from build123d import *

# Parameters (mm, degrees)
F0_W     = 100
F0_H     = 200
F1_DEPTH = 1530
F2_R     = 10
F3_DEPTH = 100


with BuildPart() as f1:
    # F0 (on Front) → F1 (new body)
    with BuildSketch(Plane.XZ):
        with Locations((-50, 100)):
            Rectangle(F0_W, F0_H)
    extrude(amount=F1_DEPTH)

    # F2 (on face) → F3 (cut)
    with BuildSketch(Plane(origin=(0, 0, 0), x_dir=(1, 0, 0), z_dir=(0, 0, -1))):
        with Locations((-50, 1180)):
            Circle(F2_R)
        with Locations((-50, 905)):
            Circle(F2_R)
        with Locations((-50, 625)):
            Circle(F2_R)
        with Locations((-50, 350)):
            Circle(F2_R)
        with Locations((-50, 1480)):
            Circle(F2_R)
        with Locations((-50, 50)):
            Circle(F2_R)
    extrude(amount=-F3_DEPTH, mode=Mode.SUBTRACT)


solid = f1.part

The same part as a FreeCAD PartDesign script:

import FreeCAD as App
import Part
import Sketcher
Q = App.Units.Quantity


def add_polygon(sketch, points):
    """Adds a closed chain of lines whose ends are joined by coincident constraints."""
    first, n = sketch.GeometryCount, len(points)
    for a, b in zip(points, points[1:] + points[:1]):
        sketch.addGeometry(Part.LineSegment(App.Vector(*a, 0), App.Vector(*b, 0)), False)
    for i in range(n):
        sketch.addConstraint(Sketcher.Constraint("Coincident", first + i, 2, first + (i + 1) % n, 1))

doc = App.newDocument("Part")
body = doc.addObject("PartDesign::Body", "Body")

# Sketch on XZ plane
sketch1 = doc.addObject("Sketcher::SketchObject", "Sketch")
body.addObject(sketch1)
sketch1.AttachmentSupport = (doc.XZ_Plane, [""])
sketch1.MapMode = "FlatFace"
add_polygon(sketch1, [(-100, 200), (-100, 0), (0, 0), (0, 200)])  # lines 0-3
sketch1.addConstraint([
    Sketcher.Constraint("Vertical", 0),
    Sketcher.Constraint("Horizontal", 1),
    Sketcher.Constraint("Vertical", 2),
    Sketcher.Constraint("Horizontal", 3),
    Sketcher.Constraint("Coincident", 1, 2, -1, 1),
    Sketcher.Constraint("DistanceX", 1, 1, 1, 2, Q("100 mm")),
    Sketcher.Constraint("DistanceY", 0, 2, 0, 1, Q("200 mm")),
])
pad1 = doc.addObject("PartDesign::Pad", "Pad")
body.addObject(pad1)
pad1.Profile = sketch1
pad1.Length = 1530

# Sketch on XY plane
sketch2 = doc.addObject("Sketcher::SketchObject", "Sketch001")
body.addObject(sketch2)
sketch2.AttachmentSupport = (doc.XY_Plane, [""])
sketch2.MapMode = "FlatFace"
sketch2.addGeometry([
    Part.Circle(App.Vector(-50, -1180, 0), App.Vector(0, 0, 1), 10),  # 0
    Part.Circle(App.Vector(-50, -905, 0), App.Vector(0, 0, 1), 10),  # 1
    Part.Circle(App.Vector(-50, -625, 0), App.Vector(0, 0, 1), 10),  # 2
    Part.Circle(App.Vector(-50, -350, 0), App.Vector(0, 0, 1), 10),  # 3
    Part.Circle(App.Vector(-50, -1480, 0), App.Vector(0, 0, 1), 10),  # 4
    Part.Circle(App.Vector(-50, -50, 0), App.Vector(0, 0, 1), 10),  # 5
], False)
sketch2.addConstraint([
    Sketcher.Constraint("Equal", 0, 1),
    Sketcher.Constraint("Equal", 1, 2),
    Sketcher.Constraint("Equal", 2, 3),
    Sketcher.Constraint("Equal", 3, 4),
    Sketcher.Constraint("Equal", 4, 5),
    Sketcher.Constraint("Vertical", 0, 3, 1, 3),
    Sketcher.Constraint("Vertical", 1, 3, 2, 3),
    Sketcher.Constraint("Vertical", 2, 3, 3, 3),
    Sketcher.Constraint("Vertical", 3, 3, 4, 3),
    Sketcher.Constraint("Vertical", 4, 3, 5, 3),
    Sketcher.Constraint("Diameter", 0, Q("20 mm")),
    Sketcher.Constraint("DistanceX", 0, 3, -1, 1, Q("50 mm")),
    Sketcher.Constraint("DistanceY", 0, 3, -1, 1, Q("1180 mm")),
    Sketcher.Constraint("DistanceY", 1, 3, -1, 1, Q("905 mm")),
    Sketcher.Constraint("DistanceY", 2, 3, -1, 1, Q("625 mm")),
    Sketcher.Constraint("DistanceY", 3, 3, -1, 1, Q("350 mm")),
    Sketcher.Constraint("DistanceY", 4, 3, -1, 1, Q("1480 mm")),
    Sketcher.Constraint("DistanceY", 5, 3, -1, 1, Q("50 mm")),
])
pocket1 = doc.addObject("PartDesign::Pocket", "Pocket")
body.addObject(pocket1)
pocket1.Profile = sketch2
pocket1.Length = 100
pocket1.Reversed = True

doc.recompute()
